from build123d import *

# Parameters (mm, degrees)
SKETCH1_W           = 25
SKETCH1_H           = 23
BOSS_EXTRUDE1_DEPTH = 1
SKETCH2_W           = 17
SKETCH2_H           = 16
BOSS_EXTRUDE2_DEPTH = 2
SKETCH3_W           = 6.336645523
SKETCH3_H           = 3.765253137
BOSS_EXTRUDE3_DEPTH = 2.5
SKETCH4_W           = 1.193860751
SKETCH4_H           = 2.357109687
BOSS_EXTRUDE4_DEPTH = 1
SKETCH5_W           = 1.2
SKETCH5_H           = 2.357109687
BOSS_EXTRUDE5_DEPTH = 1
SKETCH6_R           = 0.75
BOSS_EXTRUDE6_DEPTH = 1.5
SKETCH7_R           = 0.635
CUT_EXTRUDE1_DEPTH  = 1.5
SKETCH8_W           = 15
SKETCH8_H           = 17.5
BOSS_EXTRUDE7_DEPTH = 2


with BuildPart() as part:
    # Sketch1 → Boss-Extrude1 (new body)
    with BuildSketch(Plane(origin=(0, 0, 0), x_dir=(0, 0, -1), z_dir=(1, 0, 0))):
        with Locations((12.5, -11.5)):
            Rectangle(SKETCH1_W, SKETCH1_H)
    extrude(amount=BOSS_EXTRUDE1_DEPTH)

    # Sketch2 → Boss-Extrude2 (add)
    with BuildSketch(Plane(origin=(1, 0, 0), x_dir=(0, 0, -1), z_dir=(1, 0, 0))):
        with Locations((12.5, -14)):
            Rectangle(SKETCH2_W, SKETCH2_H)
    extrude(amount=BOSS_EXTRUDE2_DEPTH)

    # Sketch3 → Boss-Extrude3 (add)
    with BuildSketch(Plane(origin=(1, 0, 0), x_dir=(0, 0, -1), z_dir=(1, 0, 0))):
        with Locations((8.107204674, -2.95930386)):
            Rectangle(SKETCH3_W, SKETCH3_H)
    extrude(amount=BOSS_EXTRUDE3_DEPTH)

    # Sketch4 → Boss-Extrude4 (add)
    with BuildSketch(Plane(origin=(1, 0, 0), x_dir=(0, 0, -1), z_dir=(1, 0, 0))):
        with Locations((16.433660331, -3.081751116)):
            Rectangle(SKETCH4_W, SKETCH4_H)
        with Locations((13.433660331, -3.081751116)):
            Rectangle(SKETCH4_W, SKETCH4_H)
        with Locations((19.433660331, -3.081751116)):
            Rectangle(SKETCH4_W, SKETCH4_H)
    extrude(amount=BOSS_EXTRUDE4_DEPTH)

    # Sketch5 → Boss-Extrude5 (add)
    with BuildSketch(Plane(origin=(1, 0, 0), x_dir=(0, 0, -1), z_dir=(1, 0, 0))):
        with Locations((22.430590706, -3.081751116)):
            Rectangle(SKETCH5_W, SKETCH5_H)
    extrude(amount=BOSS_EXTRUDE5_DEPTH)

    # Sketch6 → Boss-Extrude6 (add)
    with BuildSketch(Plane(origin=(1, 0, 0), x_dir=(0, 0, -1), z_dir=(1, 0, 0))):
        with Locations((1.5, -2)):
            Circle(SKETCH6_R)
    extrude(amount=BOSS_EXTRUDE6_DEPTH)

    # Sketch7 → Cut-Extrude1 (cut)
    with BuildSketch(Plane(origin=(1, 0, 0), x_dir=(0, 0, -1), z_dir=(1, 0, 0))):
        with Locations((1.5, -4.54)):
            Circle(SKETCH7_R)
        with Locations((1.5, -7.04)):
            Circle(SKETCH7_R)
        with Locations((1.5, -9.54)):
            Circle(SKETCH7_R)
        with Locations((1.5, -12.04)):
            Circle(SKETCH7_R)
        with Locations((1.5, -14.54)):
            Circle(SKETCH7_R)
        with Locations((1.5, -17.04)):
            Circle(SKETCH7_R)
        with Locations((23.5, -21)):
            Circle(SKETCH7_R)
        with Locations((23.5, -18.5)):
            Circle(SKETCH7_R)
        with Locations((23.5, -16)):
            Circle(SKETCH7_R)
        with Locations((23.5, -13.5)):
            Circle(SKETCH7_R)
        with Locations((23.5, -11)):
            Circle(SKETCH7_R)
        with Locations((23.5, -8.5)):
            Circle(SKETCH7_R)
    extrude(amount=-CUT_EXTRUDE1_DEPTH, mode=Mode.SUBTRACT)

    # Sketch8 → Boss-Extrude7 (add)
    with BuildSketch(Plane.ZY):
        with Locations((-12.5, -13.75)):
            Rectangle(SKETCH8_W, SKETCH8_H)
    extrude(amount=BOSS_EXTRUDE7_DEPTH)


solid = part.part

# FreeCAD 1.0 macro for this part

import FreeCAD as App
import Part
import Sketcher
from FreeCAD import Vector

doc = App.newDocument("Part")
body = doc.addObject("PartDesign::Body", "Body")

# Sketch on YZ plane
sketch1 = body.newObject("Sketcher::SketchObject", "Sketch")
sketch1.AttachmentSupport = (doc.getObject("YZ_Plane"), [""])
sketch1.MapMode = "FlatFace"
sketch1.addGeometry([
    Part.LineSegment(Vector(0, 0, 0), Vector(-23, 0, 0)),
    Part.LineSegment(Vector(-23, 0, 0), Vector(-23, -25, 0)),
    Part.LineSegment(Vector(-23, -25, 0), Vector(0, -25, 0)),
    Part.LineSegment(Vector(0, -25, 0), Vector(0, 0, 0)),
], False)
sketch1.addConstraint([
    Sketcher.Constraint("Coincident", 0, 2, 1, 1),
    Sketcher.Constraint("Coincident", 1, 2, 2, 1),
    Sketcher.Constraint("Coincident", 2, 2, 3, 1),
    Sketcher.Constraint("Coincident", 3, 2, 0, 1),
    Sketcher.Constraint("Horizontal", 0),
    Sketcher.Constraint("Vertical", 1),
    Sketcher.Constraint("Horizontal", 2),
    Sketcher.Constraint("Vertical", 3),
    Sketcher.Constraint("Coincident", 3, 2, -1, 1),
    Sketcher.Constraint("DistanceX", 0, 2, 0, 1, 23.0),
    Sketcher.Constraint("DistanceY", 1, 2, 1, 1, 25.0),
])
pad1 = body.newObject("PartDesign::Pad", "Pad")
pad1.Profile = sketch1
pad1.Length = 1

# Sketch on YZ plane
sketch2 = body.newObject("Sketcher::SketchObject", "Sketch001")
sketch2.AttachmentSupport = (doc.getObject("YZ_Plane"), [""])
sketch2.MapMode = "FlatFace"
sketch2.AttachmentOffset = App.Placement(Vector(0, 0, 1), App.Rotation())
sketch2.addGeometry([
    Part.LineSegment(Vector(-6, -4, 0), Vector(-22, -4, 0)),
    Part.LineSegment(Vector(-22, -4, 0), Vector(-22, -21, 0)),
    Part.LineSegment(Vector(-22, -21, 0), Vector(-6, -21, 0)),
    Part.LineSegment(Vector(-6, -21, 0), Vector(-6, -4, 0)),
], False)
sketch2.addConstraint([
    Sketcher.Constraint("Coincident", 0, 2, 1, 1),
    Sketcher.Constraint("Coincident", 1, 2, 2, 1),
    Sketcher.Constraint("Coincident", 2, 2, 3, 1),
    Sketcher.Constraint("Coincident", 3, 2, 0, 1),
    Sketcher.Constraint("Horizontal", 0),
    Sketcher.Constraint("Vertical", 1),
    Sketcher.Constraint("Horizontal", 2),
    Sketcher.Constraint("Vertical", 3),
    Sketcher.Constraint("DistanceX", 0, 2, 0, 1, 16.0),
    Sketcher.Constraint("DistanceY", 1, 2, 1, 1, 17.0),
    Sketcher.Constraint("DistanceX", 0, 2, -1, 1, 22.0),
    Sketcher.Constraint("DistanceY", 0, 2, -1, 1, 4.0),
])
pad2 = body.newObject("PartDesign::Pad", "Pad001")
pad2.Profile = sketch2
pad2.Length = 2

# Sketch on YZ plane
sketch3 = body.newObject("Sketcher::SketchObject", "Sketch002")
sketch3.AttachmentSupport = (doc.getObject("YZ_Plane"), [""])
sketch3.MapMode = "FlatFace"
sketch3.AttachmentOffset = App.Placement(Vector(0, 0, 1), App.Rotation())
sketch3.addGeometry([
    Part.LineSegment(Vector(-1.1, -4.9, 0), Vector(-4.8, -4.9, 0)),
    Part.LineSegment(Vector(-4.8, -4.9, 0), Vector(-4.8, -11.3, 0)),
    Part.LineSegment(Vector(-4.8, -11.3, 0), Vector(-1.1, -11.3, 0)),
    Part.LineSegment(Vector(-1.1, -11.3, 0), Vector(-1.1, -4.9, 0)),
], False)
sketch3.addConstraint([
    Sketcher.Constraint("Coincident", 0, 2, 1, 1),
    Sketcher.Constraint("Coincident", 1, 2, 2, 1),
    Sketcher.Constraint("Coincident", 2, 2, 3, 1),
    Sketcher.Constraint("Coincident", 3, 2, 0, 1),
    Sketcher.Constraint("Horizontal", 0),
    Sketcher.Constraint("Vertical", 1),
    Sketcher.Constraint("Horizontal", 2),
    Sketcher.Constraint("Vertical", 3),
    Sketcher.Constraint("DistanceX", 0, 2, 0, 1, 3.765253),
    Sketcher.Constraint("DistanceY", 1, 2, 1, 1, 6.336646),
    Sketcher.Constraint("DistanceX", 0, 2, -1, 1, 4.84193),
    Sketcher.Constraint("DistanceY", 0, 2, -1, 1, 4.938882),
])
pad3 = body.newObject("PartDesign::Pad", "Pad002")
pad3.Profile = sketch3
pad3.Length = 2.5

# Sketch on YZ plane
sketch4 = body.newObject("Sketcher::SketchObject", "Sketch003")
sketch4.AttachmentSupport = (doc.getObject("YZ_Plane"), [""])
sketch4.MapMode = "FlatFace"
sketch4.AttachmentOffset = App.Placement(Vector(0, 0, 1), App.Rotation())
sketch4.addGeometry([
    Part.LineSegment(Vector(-1.9, -15.8, 0), Vector(-4.3, -15.8, 0)),  # 0
    Part.LineSegment(Vector(-4.3, -15.8, 0), Vector(-4.3, -17, 0)),  # 1
    Part.LineSegment(Vector(-4.3, -17, 0), Vector(-1.9, -17, 0)),  # 2
    Part.LineSegment(Vector(-1.9, -17, 0), Vector(-1.9, -15.8, 0)),  # 3
    Part.LineSegment(Vector(-1.9, -12.8, 0), Vector(-4.3, -12.8, 0)),  # 4
    Part.LineSegment(Vector(-4.3, -12.8, 0), Vector(-4.3, -14, 0)),  # 5
    Part.LineSegment(Vector(-4.3, -14, 0), Vector(-1.9, -14, 0)),  # 6
    Part.LineSegment(Vector(-1.9, -14, 0), Vector(-1.9, -12.8, 0)),  # 7
    Part.LineSegment(Vector(-1.9, -18.8, 0), Vector(-4.3, -18.8, 0)),  # 8
    Part.LineSegment(Vector(-4.3, -18.8, 0), Vector(-4.3, -20, 0)),  # 9
    Part.LineSegment(Vector(-4.3, -20, 0), Vector(-1.9, -20, 0)),  # 10
    Part.LineSegment(Vector(-1.9, -20, 0), Vector(-1.9, -18.8, 0)),  # 11
], False)
sketch4.addConstraint([
    Sketcher.Constraint("Coincident", 0, 2, 1, 1),
    Sketcher.Constraint("Coincident", 1, 2, 2, 1),
    Sketcher.Constraint("Coincident", 2, 2, 3, 1),
    Sketcher.Constraint("Coincident", 3, 2, 0, 1),
    Sketcher.Constraint("Coincident", 4, 2, 5, 1),
    Sketcher.Constraint("Coincident", 5, 2, 6, 1),
    Sketcher.Constraint("Coincident", 6, 2, 7, 1),
    Sketcher.Constraint("Coincident", 7, 2, 4, 1),
    Sketcher.Constraint("Coincident", 8, 2, 9, 1),
    Sketcher.Constraint("Coincident", 9, 2, 10, 1),
    Sketcher.Constraint("Coincident", 10, 2, 11, 1),
    Sketcher.Constraint("Coincident", 11, 2, 8, 1),
    Sketcher.Constraint("Horizontal", 0),
    Sketcher.Constraint("Vertical", 1),
    Sketcher.Constraint("Horizontal", 2),
    Sketcher.Constraint("Vertical", 3),
    Sketcher.Constraint("Horizontal", 4),
    Sketcher.Constraint("Vertical", 5),
    Sketcher.Constraint("Horizontal", 6),
    Sketcher.Constraint("Vertical", 7),
    Sketcher.Constraint("Horizontal", 8),
    Sketcher.Constraint("Vertical", 9),
    Sketcher.Constraint("Horizontal", 10),
    Sketcher.Constraint("Vertical", 11),
    Sketcher.Constraint("Vertical", 1, 2, 4, 2),
    Sketcher.Constraint("Vertical", 3, 2, 6, 2),
    Sketcher.Constraint("Vertical", 5, 2, 8, 2),
    Sketcher.Constraint("Vertical", 7, 2, 10, 2),
    Sketcher.Constraint("Equal", 3, 5),
    Sketcher.Constraint("Equal", 7, 9),
    Sketcher.Constraint("DistanceY", 0, 2, 4, 2, 3.0),
    Sketcher.Constraint("DistanceY", 8, 2, 0, 2, 3.0),
    Sketcher.Constraint("DistanceX", 0, 2, 0, 1, 2.35711),
    Sketcher.Constraint("DistanceY", 1, 2, 1, 1, 1.193861),
    Sketcher.Constraint("DistanceY", 0, 2, -1, 1, 15.83673),
    Sketcher.Constraint("DistanceX", 0, 2, -1, 1, 4.260306),
])
pad4 = body.newObject("PartDesign::Pad", "Pad003")
pad4.Profile = sketch4
pad4.Length = 1

# Sketch on YZ plane
sketch5 = body.newObject("Sketcher::SketchObject", "Sketch004")
sketch5.AttachmentSupport = (doc.getObject("YZ_Plane"), [""])
sketch5.MapMode = "FlatFace"
sketch5.AttachmentOffset = App.Placement(Vector(0, 0, 1), App.Rotation())
sketch5.addGeometry([
    Part.LineSegment(Vector(-1.9, -21.8, 0), Vector(-4.3, -21.8, 0)),
    Part.LineSegment(Vector(-4.3, -21.8, 0), Vector(-4.3, -23, 0)),
    Part.LineSegment(Vector(-4.3, -23, 0), Vector(-1.9, -23, 0)),
    Part.LineSegment(Vector(-1.9, -23, 0), Vector(-1.9, -21.8, 0)),
], False)
sketch5.addConstraint([
    Sketcher.Constraint("Coincident", 0, 2, 1, 1),
    Sketcher.Constraint("Coincident", 1, 2, 2, 1),
    Sketcher.Constraint("Coincident", 2, 2, 3, 1),
    Sketcher.Constraint("Coincident", 3, 2, 0, 1),
    Sketcher.Constraint("Horizontal", 0),
    Sketcher.Constraint("Vertical", 1),
    Sketcher.Constraint("Horizontal", 2),
    Sketcher.Constraint("Vertical", 3),
    Sketcher.Constraint("DistanceY", 1, 2, 1, 1, 1.2),
    Sketcher.Constraint("DistanceX", 0, 2, 0, 1, 2.35711),
    Sketcher.Constraint("DistanceY", 0, 2, -1, 1, 21.830591),
    Sketcher.Constraint("DistanceX", 0, 2, -1, 1, 4.260306),
])
pad5 = body.newObject("PartDesign::Pad", "Pad004")
pad5.Profile = sketch5
pad5.Length = 1

# Sketch on YZ plane
sketch6 = body.newObject("Sketcher::SketchObject", "Sketch005")
sketch6.AttachmentSupport = (doc.getObject("YZ_Plane"), [""])
sketch6.MapMode = "FlatFace"
sketch6.AttachmentOffset = App.Placement(Vector(0, 0, 1), App.Rotation())
sketch6.addGeometry(Part.Circle(Vector(-2, -1.5, 0), Vector(0, 0, 1), 0.8), False)
sketch6.addConstraint([
    Sketcher.Constraint("Diameter", 0, 1.5),
    Sketcher.Constraint("DistanceX", 0, 3, -1, 1, 2.0),
    Sketcher.Constraint("DistanceY", 0, 3, -1, 1, 1.5),
])
pad6 = body.newObject("PartDesign::Pad", "Pad005")
pad6.Profile = sketch6
pad6.Length = 1.5

# Sketch on YZ plane
sketch7 = body.newObject("Sketcher::SketchObject", "Sketch006")
sketch7.AttachmentSupport = (doc.getObject("YZ_Plane"), [""])
sketch7.MapMode = "FlatFace"
sketch7.AttachmentOffset = App.Placement(Vector(0, 0, 1), App.Rotation())
sketch7.addGeometry([
    Part.Circle(Vector(-4.5, -1.5, 0), Vector(0, 0, 1), 0.6),  # 0
    Part.Circle(Vector(-7, -1.5, 0), Vector(0, 0, 1), 0.6),  # 1
    Part.Circle(Vector(-9.5, -1.5, 0), Vector(0, 0, 1), 0.6),  # 2
    Part.Circle(Vector(-12, -1.5, 0), Vector(0, 0, 1), 0.6),  # 3
    Part.Circle(Vector(-14.5, -1.5, 0), Vector(0, 0, 1), 0.6),  # 4
    Part.Circle(Vector(-17, -1.5, 0), Vector(0, 0, 1), 0.6),  # 5
    Part.Circle(Vector(-21, -23.5, 0), Vector(0, 0, 1), 0.6),  # 6
    Part.Circle(Vector(-18.5, -23.5, 0), Vector(0, 0, 1), 0.6),  # 7
    Part.Circle(Vector(-16, -23.5, 0), Vector(0, 0, 1), 0.6),  # 8
    Part.Circle(Vector(-13.5, -23.5, 0), Vector(0, 0, 1), 0.6),  # 9
    Part.Circle(Vector(-11, -23.5, 0), Vector(0, 0, 1), 0.6),  # 10
    Part.Circle(Vector(-8.5, -23.5, 0), Vector(0, 0, 1), 0.6),  # 11
], False)
sketch7.addConstraint([
    Sketcher.Constraint("Equal", 0, 1),
    Sketcher.Constraint("Equal", 1, 2),
    Sketcher.Constraint("Equal", 2, 3),
    Sketcher.Constraint("Equal", 3, 4),
    Sketcher.Constraint("Equal", 4, 5),
    Sketcher.Constraint("Equal", 5, 6),
    Sketcher.Constraint("Equal", 6, 7),
    Sketcher.Constraint("Equal", 7, 8),
    Sketcher.Constraint("Equal", 8, 9),
    Sketcher.Constraint("Equal", 9, 10),
    Sketcher.Constraint("Equal", 10, 11),
    Sketcher.Constraint("Horizontal", 0, 3, 1, 3),
    Sketcher.Constraint("Horizontal", 1, 3, 2, 3),
    Sketcher.Constraint("Horizontal", 2, 3, 3, 3),
    Sketcher.Constraint("Horizontal", 3, 3, 4, 3),
    Sketcher.Constraint("Horizontal", 4, 3, 5, 3),
    Sketcher.Constraint("Horizontal", 6, 3, 7, 3),
    Sketcher.Constraint("Horizontal", 7, 3, 8, 3),
    Sketcher.Constraint("Horizontal", 8, 3, 9, 3),
    Sketcher.Constraint("Horizontal", 9, 3, 10, 3),
    Sketcher.Constraint("Horizontal", 10, 3, 11, 3),
    Sketcher.Constraint("Diameter", 0, 1.27),
    Sketcher.Constraint("DistanceX", 6, 3, -1, 1, 21.0),
    Sketcher.Constraint("DistanceX", 8, 3, -1, 1, 16.0),
    Sketcher.Constraint("DistanceX", 10, 3, -1, 1, 11.0),
    Sketcher.Constraint("DistanceX", 2, 3, 0, 3, 5.0),
    Sketcher.Constraint("DistanceX", 3, 3, 1, 3, 5.0),
    Sketcher.Constraint("DistanceX", 4, 3, 2, 3, 5.0),
    Sketcher.Constraint("DistanceX", 5, 3, 3, 3, 5.0),
    Sketcher.Constraint("DistanceY", 6, 3, 5, 3, 22.0),
    Sketcher.Constraint("DistanceX", 7, 3, 9, 3, 5.0),
    Sketcher.Constraint("DistanceX", 9, 3, 11, 3, 5.0),
    Sketcher.Constraint("DistanceY", 0, 3, -1, 1, 1.5),
    Sketcher.Constraint("DistanceX", 7, 3, -1, 1, 18.5),
    Sketcher.Constraint("DistanceX", 1, 3, 0, 3, 2.5),
    Sketcher.Constraint("DistanceX", 0, 3, -1, 1, 4.54),
])
pocket1 = body.newObject("PartDesign::Pocket", "Pocket")
pocket1.Profile = sketch7
pocket1.Length = 1.5

# Sketch on YZ plane
sketch8 = body.newObject("Sketcher::SketchObject", "Sketch007")
sketch8.AttachmentSupport = (doc.getObject("YZ_Plane"), [""])
sketch8.MapMode = "FlatFace"
sketch8.addGeometry([
    Part.LineSegment(Vector(-5, -20, 0), Vector(-22, -20, 0)),
    Part.LineSegment(Vector(-22, -20, 0), Vector(-22, -5, 0)),
    Part.LineSegment(Vector(-22, -5, 0), Vector(-5, -5, 0)),
    Part.LineSegment(Vector(-5, -5, 0), Vector(-5, -20, 0)),
], False)
sketch8.addConstraint([
    Sketcher.Constraint("Coincident", 0, 2, 1, 1),
    Sketcher.Constraint("Coincident", 1, 2, 2, 1),
    Sketcher.Constraint("Coincident", 2, 2, 3, 1),
    Sketcher.Constraint("Coincident", 3, 2, 0, 1),
    Sketcher.Constraint("Horizontal", 0),
    Sketcher.Constraint("Vertical", 1),
    Sketcher.Constraint("Horizontal", 2),
    Sketcher.Constraint("Vertical", 3),
    Sketcher.Constraint("DistanceY", 1, 1, 1, 2, 15.0),
    Sketcher.Constraint("DistanceX", 0, 2, 0, 1, 17.5),
    Sketcher.Constraint("DistanceY", 0, 2, -1, 1, 20.0),
    Sketcher.Constraint("DistanceX", 2, 2, -1, 1, 5.0),
])
pad7 = body.newObject("PartDesign::Pad", "Pad006")
pad7.Profile = sketch8
pad7.Length = 2
pad7.Reversed = True

doc.recompute()
